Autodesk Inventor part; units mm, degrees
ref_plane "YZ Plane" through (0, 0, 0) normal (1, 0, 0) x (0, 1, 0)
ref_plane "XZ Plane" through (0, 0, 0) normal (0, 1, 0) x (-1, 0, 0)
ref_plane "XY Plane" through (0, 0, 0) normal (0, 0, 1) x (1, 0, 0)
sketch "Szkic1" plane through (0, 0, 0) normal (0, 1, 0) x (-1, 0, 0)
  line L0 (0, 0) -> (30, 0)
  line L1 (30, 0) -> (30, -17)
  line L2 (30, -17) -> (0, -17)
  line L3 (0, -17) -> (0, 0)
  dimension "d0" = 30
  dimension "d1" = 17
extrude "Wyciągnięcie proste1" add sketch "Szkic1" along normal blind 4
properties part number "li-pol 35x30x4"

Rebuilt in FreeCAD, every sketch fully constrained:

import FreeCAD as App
import Part
import Sketcher
from FreeCAD import Vector

doc = App.newDocument("Part")
body = doc.addObject("PartDesign::Body", "Body")

# Sketch on XZ plane
sketch1 = body.newObject("Sketcher::SketchObject", "Sketch")
sketch1.AttachmentSupport = (doc.getObject("XZ_Plane"), [""])
sketch1.MapMode = "FlatFace"
sketch1.addGeometry([
    Part.LineSegment(Vector(-30, 0, 0), Vector(0, 0, 0)),
    Part.LineSegment(Vector(0, 0, 0), Vector(0, -17, 0)),
    Part.LineSegment(Vector(0, -17, 0), Vector(-30, -17, 0)),
    Part.LineSegment(Vector(-30, -17, 0), Vector(-30, 0, 0)),
], False)
sketch1.addConstraint([
    Sketcher.Constraint("Coincident", 0, 2, 1, 1),
    Sketcher.Constraint("Coincident", 1, 2, 2, 1),
    Sketcher.Constraint("Coincident", 2, 2, 3, 1),
    Sketcher.Constraint("Coincident", 3, 2, 0, 1),
    Sketcher.Constraint("Horizontal", 0),
    Sketcher.Constraint("Vertical", 1),
    Sketcher.Constraint("Horizontal", 2),
    Sketcher.Constraint("Vertical", 3),
    Sketcher.Constraint("Coincident", 0, 2, -1, 1),
    Sketcher.Constraint("DistanceX", 0, 1, 0, 2, 30.0),
    Sketcher.Constraint("DistanceY", 1, 2, 1, 1, 17.0),
])
pad1 = body.newObject("PartDesign::Pad", "Pad")
pad1.Profile = sketch1
pad1.Length = 4
pad1.Reversed = True

doc.recompute()
